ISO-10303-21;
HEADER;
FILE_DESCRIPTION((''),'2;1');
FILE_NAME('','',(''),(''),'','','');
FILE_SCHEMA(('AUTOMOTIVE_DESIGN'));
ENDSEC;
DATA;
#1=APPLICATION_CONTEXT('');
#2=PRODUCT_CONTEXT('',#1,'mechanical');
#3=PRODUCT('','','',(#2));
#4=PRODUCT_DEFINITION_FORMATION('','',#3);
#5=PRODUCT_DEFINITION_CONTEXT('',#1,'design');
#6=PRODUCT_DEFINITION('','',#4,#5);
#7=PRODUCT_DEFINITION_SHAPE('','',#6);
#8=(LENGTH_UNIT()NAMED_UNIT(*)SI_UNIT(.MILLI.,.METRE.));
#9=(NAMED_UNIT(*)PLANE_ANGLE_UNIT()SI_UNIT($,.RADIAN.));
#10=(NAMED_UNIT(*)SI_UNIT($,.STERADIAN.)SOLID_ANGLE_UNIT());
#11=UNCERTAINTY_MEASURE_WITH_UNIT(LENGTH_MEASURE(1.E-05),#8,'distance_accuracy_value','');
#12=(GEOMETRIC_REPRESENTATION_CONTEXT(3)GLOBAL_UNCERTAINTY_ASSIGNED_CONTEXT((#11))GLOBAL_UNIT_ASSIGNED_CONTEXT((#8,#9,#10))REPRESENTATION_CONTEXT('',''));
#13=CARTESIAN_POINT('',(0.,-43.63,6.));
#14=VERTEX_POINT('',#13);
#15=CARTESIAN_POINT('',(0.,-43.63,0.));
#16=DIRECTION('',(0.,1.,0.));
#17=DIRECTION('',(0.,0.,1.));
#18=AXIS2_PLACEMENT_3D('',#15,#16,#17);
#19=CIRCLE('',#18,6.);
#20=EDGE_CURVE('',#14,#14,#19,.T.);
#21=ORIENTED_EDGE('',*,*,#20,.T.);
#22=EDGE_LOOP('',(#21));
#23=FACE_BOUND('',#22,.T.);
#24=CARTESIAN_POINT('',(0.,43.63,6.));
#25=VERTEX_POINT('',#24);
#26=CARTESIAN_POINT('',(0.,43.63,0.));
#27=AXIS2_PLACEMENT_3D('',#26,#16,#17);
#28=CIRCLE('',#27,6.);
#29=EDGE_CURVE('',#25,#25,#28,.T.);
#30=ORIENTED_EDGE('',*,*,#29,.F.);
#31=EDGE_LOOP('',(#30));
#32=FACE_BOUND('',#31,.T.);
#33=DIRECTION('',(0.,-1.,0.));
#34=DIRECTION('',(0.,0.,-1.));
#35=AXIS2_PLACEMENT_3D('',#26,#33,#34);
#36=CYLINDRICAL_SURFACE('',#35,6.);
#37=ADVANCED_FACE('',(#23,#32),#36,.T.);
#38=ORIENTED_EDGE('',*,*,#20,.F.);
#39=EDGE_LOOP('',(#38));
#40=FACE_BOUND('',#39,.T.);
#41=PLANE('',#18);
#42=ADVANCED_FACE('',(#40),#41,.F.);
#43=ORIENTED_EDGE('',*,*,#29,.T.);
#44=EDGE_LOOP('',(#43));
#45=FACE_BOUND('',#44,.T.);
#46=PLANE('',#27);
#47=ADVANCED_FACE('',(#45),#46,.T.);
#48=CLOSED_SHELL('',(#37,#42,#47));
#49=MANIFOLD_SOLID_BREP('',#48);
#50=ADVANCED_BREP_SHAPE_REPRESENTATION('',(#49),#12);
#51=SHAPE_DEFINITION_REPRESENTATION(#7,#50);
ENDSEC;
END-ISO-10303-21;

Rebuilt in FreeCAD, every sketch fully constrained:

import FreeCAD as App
import Part
import Sketcher

V = App.Vector
Q = App.Units.Quantity

doc = App.newDocument("Part")
body = doc.addObject("PartDesign::Body", "Body")

# Sketch on XZ plane
sketch1 = body.newObject("Sketcher::SketchObject", "Sketch")
sketch1.AttachmentSupport = (doc.getObject("XZ_Plane"), [""])
sketch1.MapMode = "FlatFace"
sketch1.addGeometry(Part.Circle(V(0, 0, 0), V(0, 0, 1), 6), False)
sketch1.addConstraint([
    Sketcher.Constraint("Coincident", 0, 3, -1, 1),
    Sketcher.Constraint("Diameter", 0, Q("12 mm")),
])
pad1 = body.newObject("PartDesign::Pad", "Pad")
pad1.Profile = sketch1
pad1.Length = 87.26
pad1.Midplane = True

doc.recompute()
